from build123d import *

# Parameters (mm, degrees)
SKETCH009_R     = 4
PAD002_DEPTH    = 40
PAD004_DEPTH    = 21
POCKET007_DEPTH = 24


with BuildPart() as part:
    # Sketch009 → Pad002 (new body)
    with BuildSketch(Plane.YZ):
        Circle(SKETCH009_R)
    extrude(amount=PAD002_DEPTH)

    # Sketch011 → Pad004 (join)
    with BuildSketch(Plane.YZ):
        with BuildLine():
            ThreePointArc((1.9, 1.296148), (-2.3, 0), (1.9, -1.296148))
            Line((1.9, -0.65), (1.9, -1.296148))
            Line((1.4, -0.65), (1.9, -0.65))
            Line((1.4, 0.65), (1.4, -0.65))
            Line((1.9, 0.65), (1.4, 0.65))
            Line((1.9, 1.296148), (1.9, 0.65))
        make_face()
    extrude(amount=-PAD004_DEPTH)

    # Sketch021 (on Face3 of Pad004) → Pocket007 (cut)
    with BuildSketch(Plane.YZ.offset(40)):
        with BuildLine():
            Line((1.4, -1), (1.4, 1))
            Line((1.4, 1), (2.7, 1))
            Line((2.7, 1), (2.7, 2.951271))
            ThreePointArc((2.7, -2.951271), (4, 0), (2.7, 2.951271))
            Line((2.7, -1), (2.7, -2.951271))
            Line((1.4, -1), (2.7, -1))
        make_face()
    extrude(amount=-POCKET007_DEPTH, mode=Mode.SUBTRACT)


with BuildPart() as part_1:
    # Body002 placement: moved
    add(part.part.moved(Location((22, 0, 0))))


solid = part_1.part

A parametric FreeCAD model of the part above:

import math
import FreeCAD as App
import Part
import Sketcher

V = App.Vector

doc = App.newDocument("Part")
body = doc.addObject("PartDesign::Body", "Body")

sketch1 = body.newObject("Sketcher::SketchObject", "Sketch")
sketch1.AttachmentSupport = (doc.getObject("YZ_Plane"), [""])
sketch1.MapMode = "FlatFace"
sketch1.addGeometry(Part.Circle(V(0, 0, 0), V(0, 0, 1), 4), False)
sketch1.addConstraint(Sketcher.Constraint("Coincident", 0, 3, -1, 1))
sketch1.addConstraint(Sketcher.Constraint("Diameter", 0, 8.0))
pad1 = body.newObject("PartDesign::Pad", "Pad")
pad1.Profile = sketch1
pad1.Length = 40

sketch2 = body.newObject("Sketcher::SketchObject", "Sketch001")
sketch2.AttachmentSupport = (doc.getObject("YZ_Plane"), [""])
sketch2.MapMode = "FlatFace"
sketch2.addGeometry(Part.ArcOfCircle(Part.Circle(V(0, 0, 0), V(0, 0, 1), 2.3), math.radians(34), math.radians(326)), False)
sketch2.addGeometry(Part.LineSegment(V(1.9, -1.3, 0), V(1.9, -0.7, 0)), False)
sketch2.addGeometry(Part.LineSegment(V(1.9, -0.7, 0), V(1.4, -0.7, 0)), False)
sketch2.addGeometry(Part.LineSegment(V(1.4, -0.7, 0), V(1.4, 0.7, 0)), False)
sketch2.addGeometry(Part.LineSegment(V(1.4, 0.7, 0), V(1.9, 0.7, 0)), False)
sketch2.addGeometry(Part.LineSegment(V(1.9, 0.7, 0), V(1.9, 1.3, 0)), False)
sketch2.addConstraint(Sketcher.Constraint("Coincident", 0, 2, 1, 1))
sketch2.addConstraint(Sketcher.Constraint("Coincident", 1, 2, 2, 1))
sketch2.addConstraint(Sketcher.Constraint("Coincident", 2, 2, 3, 1))
sketch2.addConstraint(Sketcher.Constraint("Coincident", 3, 2, 4, 1))
sketch2.addConstraint(Sketcher.Constraint("Coincident", 4, 2, 5, 1))
sketch2.addConstraint(Sketcher.Constraint("Coincident", 5, 2, 0, 1))
sketch2.addConstraint(Sketcher.Constraint("Vertical", 1))
sketch2.addConstraint(Sketcher.Constraint("Horizontal", 2))
sketch2.addConstraint(Sketcher.Constraint("Vertical", 3))
sketch2.addConstraint(Sketcher.Constraint("Horizontal", 4))
sketch2.addConstraint(Sketcher.Constraint("Vertical", 5))
sketch2.addConstraint(Sketcher.Constraint("Coincident", 0, 3, -1, 1))
sketch2.addConstraint(Sketcher.Constraint("Symmetric", 1, 2, 4, 2, -1))
sketch2.addConstraint(Sketcher.Constraint("Radius", 0, 2.3))
sketch2.addConstraint(Sketcher.Constraint("DistanceX", 2, 2, 2, 1, 0.5))
sketch2.addConstraint(Sketcher.Constraint("DistanceY", 3, 1, 3, 2, 1.3))
sketch2.addConstraint(Sketcher.Constraint("DistanceX", -1, 1, 0, 2, 1.9))
pad2 = body.newObject("PartDesign::Pad", "Pad001")
pad2.Profile = sketch2
pad2.Length = 21
pad2.Reversed = True

sketch3 = body.newObject("Sketcher::SketchObject", "Sketch002")
sketch3.AttachmentSupport = (doc.getObject("YZ_Plane"), [""])
sketch3.MapMode = "FlatFace"
sketch3.AttachmentOffset = App.Placement(V(0, 0, 40), App.Rotation())
sketch3.addGeometry(Part.LineSegment(V(1.4, 1, 0), V(1.4, -1, 0)), False)
sketch3.addGeometry(Part.LineSegment(V(1.4, -1, 0), V(2.7, -1, 0)), False)
sketch3.addGeometry(Part.LineSegment(V(2.7, -1, 0), V(2.7, -3, 0)), False)
sketch3.addGeometry(Part.ArcOfCircle(Part.Circle(V(0, 0, 0), V(0, 0, 1), 4), math.radians(-48), math.radians(48)), False)
sketch3.addGeometry(Part.LineSegment(V(2.7, 3, 0), V(2.7, 1, 0)), False)
sketch3.addGeometry(Part.LineSegment(V(2.7, 1, 0), V(1.4, 1, 0)), False)
sketch3.addConstraint(Sketcher.Constraint("Coincident", 0, 2, 1, 1))
sketch3.addConstraint(Sketcher.Constraint("Coincident", 1, 2, 2, 1))
sketch3.addConstraint(Sketcher.Constraint("Coincident", 2, 2, 3, 1))
sketch3.addConstraint(Sketcher.Constraint("Coincident", 3, 2, 4, 1))
sketch3.addConstraint(Sketcher.Constraint("Coincident", 4, 2, 5, 1))
sketch3.addConstraint(Sketcher.Constraint("Coincident", 5, 2, 0, 1))
sketch3.addConstraint(Sketcher.Constraint("Vertical", 0))
sketch3.addConstraint(Sketcher.Constraint("Horizontal", 1))
sketch3.addConstraint(Sketcher.Constraint("Vertical", 2))
sketch3.addConstraint(Sketcher.Constraint("Vertical", 4))
sketch3.addConstraint(Sketcher.Constraint("Horizontal", 5))
sketch3.addConstraint(Sketcher.Constraint("Coincident", 3, 3, -1, 1))
sketch3.addConstraint(Sketcher.Constraint("Symmetric", 1, 2, 4, 2, -1))
sketch3.addConstraint(Sketcher.Constraint("Radius", 3, 4.0))
sketch3.addConstraint(Sketcher.Constraint("DistanceY", 0, 2, 0, 1, 2.0))
sketch3.addConstraint(Sketcher.Constraint("DistanceX", 1, 1, 1, 2, 1.3))
sketch3.addConstraint(Sketcher.Constraint("DistanceX", -1, 1, 0, 2, 1.4))
pocket1 = body.newObject("PartDesign::Pocket", "Pocket")
pocket1.Profile = sketch3
pocket1.Length = 24
body2 = doc.addObject("PartDesign::Body", "Body001")
doc.recompute()

body.Placement = App.Placement(V(22, 0, 0), App.Rotation(V(0, 0, 1), 0))
boolean = body2.newObject("PartDesign::Boolean", "Boolean")
boolean.Type = "Fuse"
boolean.addObjects([body])

doc.recompute()
